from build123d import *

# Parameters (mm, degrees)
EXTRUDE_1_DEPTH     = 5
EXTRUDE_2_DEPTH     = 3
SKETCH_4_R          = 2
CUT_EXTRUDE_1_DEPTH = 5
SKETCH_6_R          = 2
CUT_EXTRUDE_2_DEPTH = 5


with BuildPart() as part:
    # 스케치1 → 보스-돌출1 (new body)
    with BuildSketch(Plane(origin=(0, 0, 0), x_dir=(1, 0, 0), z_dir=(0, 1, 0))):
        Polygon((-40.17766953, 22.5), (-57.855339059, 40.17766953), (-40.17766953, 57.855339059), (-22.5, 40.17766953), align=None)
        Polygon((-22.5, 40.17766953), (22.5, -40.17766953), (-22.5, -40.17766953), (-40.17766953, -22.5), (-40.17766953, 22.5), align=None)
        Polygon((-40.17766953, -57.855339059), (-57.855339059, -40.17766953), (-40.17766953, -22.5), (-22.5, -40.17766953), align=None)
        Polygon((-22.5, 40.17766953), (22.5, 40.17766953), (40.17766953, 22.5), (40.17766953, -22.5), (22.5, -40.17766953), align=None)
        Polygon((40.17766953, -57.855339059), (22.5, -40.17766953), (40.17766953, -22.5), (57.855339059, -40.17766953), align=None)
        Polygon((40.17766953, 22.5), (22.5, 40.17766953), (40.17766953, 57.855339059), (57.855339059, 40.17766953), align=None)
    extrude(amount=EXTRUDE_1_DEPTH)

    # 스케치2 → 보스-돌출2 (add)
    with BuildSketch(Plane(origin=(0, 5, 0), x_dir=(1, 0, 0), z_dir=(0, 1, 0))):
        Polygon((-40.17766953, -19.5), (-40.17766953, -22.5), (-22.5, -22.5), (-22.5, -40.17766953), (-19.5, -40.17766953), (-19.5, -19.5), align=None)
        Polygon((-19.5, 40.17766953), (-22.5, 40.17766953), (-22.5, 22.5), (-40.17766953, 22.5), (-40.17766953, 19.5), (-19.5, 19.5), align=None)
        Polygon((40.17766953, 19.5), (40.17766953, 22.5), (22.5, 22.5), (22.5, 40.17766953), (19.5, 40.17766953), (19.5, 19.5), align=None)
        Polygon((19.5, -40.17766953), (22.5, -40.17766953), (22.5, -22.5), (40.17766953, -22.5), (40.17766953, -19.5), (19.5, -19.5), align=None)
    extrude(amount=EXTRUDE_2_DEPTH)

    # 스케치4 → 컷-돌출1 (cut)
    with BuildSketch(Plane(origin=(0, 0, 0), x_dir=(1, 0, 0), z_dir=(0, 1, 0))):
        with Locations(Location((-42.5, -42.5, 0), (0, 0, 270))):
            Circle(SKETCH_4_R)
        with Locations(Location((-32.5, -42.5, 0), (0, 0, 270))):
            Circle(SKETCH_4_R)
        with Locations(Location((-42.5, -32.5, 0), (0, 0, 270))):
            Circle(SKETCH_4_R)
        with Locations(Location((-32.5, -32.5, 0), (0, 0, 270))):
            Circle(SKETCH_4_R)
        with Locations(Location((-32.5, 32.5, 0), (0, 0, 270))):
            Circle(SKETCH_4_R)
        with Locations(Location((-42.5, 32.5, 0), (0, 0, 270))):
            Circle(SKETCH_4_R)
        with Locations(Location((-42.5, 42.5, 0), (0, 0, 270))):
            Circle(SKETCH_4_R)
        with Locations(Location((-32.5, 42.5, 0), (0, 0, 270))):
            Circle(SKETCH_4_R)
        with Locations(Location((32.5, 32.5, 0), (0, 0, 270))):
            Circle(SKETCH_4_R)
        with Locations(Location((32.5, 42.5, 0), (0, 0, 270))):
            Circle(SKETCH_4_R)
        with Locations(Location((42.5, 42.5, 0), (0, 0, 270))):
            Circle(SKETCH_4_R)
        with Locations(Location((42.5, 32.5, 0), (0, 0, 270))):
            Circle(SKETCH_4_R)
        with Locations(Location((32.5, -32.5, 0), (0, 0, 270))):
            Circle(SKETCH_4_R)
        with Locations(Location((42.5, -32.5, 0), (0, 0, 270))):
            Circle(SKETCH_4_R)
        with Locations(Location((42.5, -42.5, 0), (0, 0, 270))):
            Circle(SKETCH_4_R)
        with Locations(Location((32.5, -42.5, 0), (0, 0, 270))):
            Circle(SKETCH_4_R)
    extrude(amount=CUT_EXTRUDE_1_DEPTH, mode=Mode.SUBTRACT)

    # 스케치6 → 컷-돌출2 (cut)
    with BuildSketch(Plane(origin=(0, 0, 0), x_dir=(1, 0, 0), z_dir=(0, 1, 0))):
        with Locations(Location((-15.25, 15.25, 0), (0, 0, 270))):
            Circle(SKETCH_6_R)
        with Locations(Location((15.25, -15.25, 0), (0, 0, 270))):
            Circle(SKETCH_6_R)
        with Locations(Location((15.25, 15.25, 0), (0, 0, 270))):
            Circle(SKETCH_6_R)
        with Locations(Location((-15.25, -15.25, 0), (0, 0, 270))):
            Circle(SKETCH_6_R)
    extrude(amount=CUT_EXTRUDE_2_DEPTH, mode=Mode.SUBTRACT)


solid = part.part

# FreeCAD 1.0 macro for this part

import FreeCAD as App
import Part
import Sketcher


def add_polygon(sketch, points):
    """Adds a closed chain of lines whose ends are joined by coincident constraints."""
    first, n = sketch.GeometryCount, len(points)
    for a, b in zip(points, points[1:] + points[:1]):
        sketch.addGeometry(Part.LineSegment(App.Vector(*a, 0), App.Vector(*b, 0)), False)
    for i in range(n):
        sketch.addConstraint(Sketcher.Constraint("Coincident", first + i, 2, first + (i + 1) % n, 1))

doc = App.newDocument("Part")
body = doc.addObject("PartDesign::Body", "Body")

sketch1 = doc.addObject("Sketcher::SketchObject", "Sketch")
body.addObject(sketch1)
sketch1.AttachmentSupport = (doc.XZ_Plane, [""])
sketch1.MapMode = "FlatFace"
add_polygon(sketch1, [(-58, -40), (-40, -22), (-40, 22), (-58, 40), (-40, 58), (-22, 40), (22, 40), (40, 58), (58, 40), (40, 22), (40, -22), (58, -40), (40, -58), (22, -40), (-22, -40), (-40, -58)])
sketch1.addConstraint(Sketcher.Constraint("Vertical", 1))
sketch1.addConstraint(Sketcher.Constraint("Horizontal", 5))
sketch1.addConstraint(Sketcher.Constraint("Vertical", 9))
sketch1.addConstraint(Sketcher.Constraint("Horizontal", 13))
sketch1.addConstraint(Sketcher.Constraint("Symmetric", 0, 2, 8, 2, -1, 1))
sketch1.addConstraint(Sketcher.Constraint("Symmetric", 2, 2, 10, 2, -1, 1))
sketch1.addConstraint(Sketcher.Constraint("Symmetric", 3, 2, 11, 2, -1, 1))
sketch1.addConstraint(Sketcher.Constraint("Symmetric", 4, 2, 12, 2, -1, 1))
sketch1.addConstraint(Sketcher.Constraint("Symmetric", 6, 2, 14, 2, -1, 1))
sketch1.addConstraint(Sketcher.Constraint("Symmetric", 7, 2, 15, 2, -1, 1))
sketch1.addConstraint(Sketcher.Constraint("Symmetric", 3, 2, 6, 2, -2))
sketch1.addConstraint(Sketcher.Constraint("Symmetric", 2, 2, 7, 2, -2))
sketch1.addConstraint(Sketcher.Constraint("Perpendicular", 0, 2))
sketch1.addConstraint(Sketcher.Constraint("Perpendicular", 2, 3))
sketch1.addConstraint(Sketcher.Constraint("Perpendicular", 3, 4))
sketch1.addConstraint(Sketcher.Constraint("Perpendicular", 4, 6))
sketch1.addConstraint(Sketcher.Constraint("Perpendicular", 6, 7))
sketch1.addConstraint(Sketcher.Constraint("Perpendicular", 8, 10))
sketch1.addConstraint(Sketcher.Constraint("Perpendicular", 12, 14))
sketch1.addConstraint(Sketcher.Constraint("Horizontal", 2, 2, 4, 2))
sketch1.addConstraint(Sketcher.Constraint("Vertical", 1, 2, 3, 2))
sketch1.addConstraint(Sketcher.Constraint("Equal", 13, 1))
sketch1.addConstraint(Sketcher.Constraint("DistanceX", 5, 1, 5, 2, 45.0))
sketch1.addConstraint(Sketcher.Constraint("Distance", 0, 25.0))
pad1 = doc.addObject("PartDesign::Pad", "Pad")
body.addObject(pad1)
pad1.Profile = sketch1
pad1.Length = 5
pad1.Reversed = True

sketch2 = doc.addObject("Sketcher::SketchObject", "Sketch001")
body.addObject(sketch2)
sketch2.AttachmentSupport = (doc.XZ_Plane, [""])
sketch2.MapMode = "FlatFace"
sketch2.AttachmentOffset = App.Placement(App.Vector(0, 0, -5), App.Rotation())
add_polygon(sketch2, [(-40.2, 19.5), (-40.2, 22.5), (-22.5, 22.5), (-22.5, 40.2), (-19.5, 40.2), (-19.5, 19.5)])
add_polygon(sketch2, [(-19.5, -40.2), (-22.5, -40.2), (-22.5, -22.5), (-40.2, -22.5), (-40.2, -19.5), (-19.5, -19.5)])
add_polygon(sketch2, [(40.2, -19.5), (40.2, -22.5), (22.5, -22.5), (22.5, -40.2), (19.5, -40.2), (19.5, -19.5)])
add_polygon(sketch2, [(19.5, 40.2), (22.5, 40.2), (22.5, 22.5), (40.2, 22.5), (40.2, 19.5), (19.5, 19.5)])
sketch2.addConstraint(Sketcher.Constraint("Vertical", 0))
sketch2.addConstraint(Sketcher.Constraint("Horizontal", 1))
sketch2.addConstraint(Sketcher.Constraint("Vertical", 2))
sketch2.addConstraint(Sketcher.Constraint("Horizontal", 3))
sketch2.addConstraint(Sketcher.Constraint("Vertical", 4))
sketch2.addConstraint(Sketcher.Constraint("Horizontal", 5))
sketch2.addConstraint(Sketcher.Constraint("Horizontal", 6))
sketch2.addConstraint(Sketcher.Constraint("Vertical", 7))
sketch2.addConstraint(Sketcher.Constraint("Horizontal", 8))
sketch2.addConstraint(Sketcher.Constraint("Vertical", 9))
sketch2.addConstraint(Sketcher.Constraint("Horizontal", 10))
sketch2.addConstraint(Sketcher.Constraint("Vertical", 11))
sketch2.addConstraint(Sketcher.Constraint("Vertical", 12))
sketch2.addConstraint(Sketcher.Constraint("Horizontal", 13))
sketch2.addConstraint(Sketcher.Constraint("Vertical", 14))
sketch2.addConstraint(Sketcher.Constraint("Horizontal", 15))
sketch2.addConstraint(Sketcher.Constraint("Vertical", 16))
sketch2.addConstraint(Sketcher.Constraint("Horizontal", 17))
sketch2.addConstraint(Sketcher.Constraint("Horizontal", 18))
sketch2.addConstraint(Sketcher.Constraint("Vertical", 19))
sketch2.addConstraint(Sketcher.Constraint("Horizontal", 20))
sketch2.addConstraint(Sketcher.Constraint("Vertical", 21))
sketch2.addConstraint(Sketcher.Constraint("Horizontal", 22))
sketch2.addConstraint(Sketcher.Constraint("Vertical", 23))
sketch2.addConstraint(Sketcher.Constraint("Symmetric", 0, 2, 12, 2, -1, 1))
sketch2.addConstraint(Sketcher.Constraint("Symmetric", 2, 2, 14, 2, -1, 1))
sketch2.addConstraint(Sketcher.Constraint("Symmetric", 4, 2, 16, 2, -1, 1))
sketch2.addConstraint(Sketcher.Constraint("Symmetric", 6, 2, 18, 2, -1, 1))
sketch2.addConstraint(Sketcher.Constraint("Symmetric", 8, 2, 20, 2, -1, 1))
sketch2.addConstraint(Sketcher.Constraint("Symmetric", 10, 2, 22, 2, -1, 1))
sketch2.addConstraint(Sketcher.Constraint("Symmetric", 8, 2, 12, 2, -2))
sketch2.addConstraint(Sketcher.Constraint("Symmetric", 6, 2, 14, 2, -2))
sketch2.addConstraint(Sketcher.Constraint("Symmetric", 10, 2, 16, 2, -2))
sketch2.addConstraint(Sketcher.Constraint("Equal", 18, 0))
sketch2.addConstraint(Sketcher.Constraint("Equal", 20, 2))
sketch2.addConstraint(Sketcher.Constraint("DistanceX", 3, 1, 3, 2, 3.0))
sketch2.addConstraint(Sketcher.Constraint("DistanceY", 7, 2, 4, 2, 42.0))
sketch2.addConstraint(Sketcher.Constraint("DistanceX", 10, 2, 13, 2, 42.0))
sketch2.addConstraint(Sketcher.Constraint("DistanceX", 1, 1, 1, 2, 17.67767))
pad2 = doc.addObject("PartDesign::Pad", "Pad001")
body.addObject(pad2)
pad2.Profile = sketch2
pad2.Length = 3
pad2.Reversed = True

sketch3 = doc.addObject("Sketcher::SketchObject", "Sketch002")
body.addObject(sketch3)
sketch3.AttachmentSupport = (doc.XZ_Plane, [""])
sketch3.MapMode = "FlatFace"
sketch3.addGeometry(Part.Circle(App.Vector(-42.5, 42.5, 0), App.Vector(0, 0, 1), 2), False)
sketch3.addGeometry(Part.Circle(App.Vector(-32.5, 42.5, 0), App.Vector(0, 0, 1), 2), False)
sketch3.addGeometry(Part.Circle(App.Vector(-42.5, 32.5, 0), App.Vector(0, 0, 1), 2), False)
sketch3.addGeometry(Part.Circle(App.Vector(-32.5, 32.5, 0), App.Vector(0, 0, 1), 2), False)
sketch3.addGeometry(Part.Circle(App.Vector(-32.5, -32.5, 0), App.Vector(0, 0, 1), 2), False)
sketch3.addGeometry(Part.Circle(App.Vector(-42.5, -32.5, 0), App.Vector(0, 0, 1), 2), False)
sketch3.addGeometry(Part.Circle(App.Vector(-42.5, -42.5, 0), App.Vector(0, 0, 1), 2), False)
sketch3.addGeometry(Part.Circle(App.Vector(-32.5, -42.5, 0), App.Vector(0, 0, 1), 2), False)
sketch3.addGeometry(Part.Circle(App.Vector(32.5, -32.5, 0), App.Vector(0, 0, 1), 2), False)
sketch3.addGeometry(Part.Circle(App.Vector(32.5, -42.5, 0), App.Vector(0, 0, 1), 2), False)
sketch3.addGeometry(Part.Circle(App.Vector(42.5, -42.5, 0), App.Vector(0, 0, 1), 2), False)
sketch3.addGeometry(Part.Circle(App.Vector(42.5, -32.5, 0), App.Vector(0, 0, 1), 2), False)
sketch3.addGeometry(Part.Circle(App.Vector(32.5, 32.5, 0), App.Vector(0, 0, 1), 2), False)
sketch3.addGeometry(Part.Circle(App.Vector(42.5, 32.5, 0), App.Vector(0, 0, 1), 2), False)
sketch3.addGeometry(Part.Circle(App.Vector(42.5, 42.5, 0), App.Vector(0, 0, 1), 2), False)
sketch3.addGeometry(Part.Circle(App.Vector(32.5, 42.5, 0), App.Vector(0, 0, 1), 2), False)
sketch3.addConstraint(Sketcher.Constraint("Equal", 0, 1))
sketch3.addConstraint(Sketcher.Constraint("Equal", 1, 2))
sketch3.addConstraint(Sketcher.Constraint("Equal", 2, 3))
sketch3.addConstraint(Sketcher.Constraint("Equal", 3, 4))
sketch3.addConstraint(Sketcher.Constraint("Equal", 4, 5))
sketch3.addConstraint(Sketcher.Constraint("Equal", 5, 6))
sketch3.addConstraint(Sketcher.Constraint("Equal", 6, 7))
sketch3.addConstraint(Sketcher.Constraint("Equal", 7, 8))
sketch3.addConstraint(Sketcher.Constraint("Equal", 8, 9))
sketch3.addConstraint(Sketcher.Constraint("Equal", 9, 10))
sketch3.addConstraint(Sketcher.Constraint("Equal", 10, 11))
sketch3.addConstraint(Sketcher.Constraint("Equal", 11, 12))
sketch3.addConstraint(Sketcher.Constraint("Equal", 12, 13))
sketch3.addConstraint(Sketcher.Constraint("Equal", 13, 14))
sketch3.addConstraint(Sketcher.Constraint("Equal", 14, 15))
sketch3.addConstraint(Sketcher.Constraint("Symmetric", 3, 3, 8, 3, -1, 1))
sketch3.addConstraint(Sketcher.Constraint("Symmetric", 1, 3, 9, 3, -1, 1))
sketch3.addConstraint(Sketcher.Constraint("Symmetric", 0, 3, 10, 3, -1, 1))
sketch3.addConstraint(Sketcher.Constraint("Symmetric", 2, 3, 11, 3, -1, 1))
sketch3.addConstraint(Sketcher.Constraint("Symmetric", 4, 3, 12, 3, -1, 1))
sketch3.addConstraint(Sketcher.Constraint("Symmetric", 5, 3, 13, 3, -1, 1))
sketch3.addConstraint(Sketcher.Constraint("Symmetric", 6, 3, 14, 3, -1, 1))
sketch3.addConstraint(Sketcher.Constraint("Symmetric", 7, 3, 15, 3, -1, 1))
sketch3.addConstraint(Sketcher.Constraint("Symmetric", 4, 3, 8, 3, -2))
sketch3.addConstraint(Sketcher.Constraint("Symmetric", 7, 3, 9, 3, -2))
sketch3.addConstraint(Sketcher.Constraint("Symmetric", 6, 3, 10, 3, -2))
sketch3.addConstraint(Sketcher.Constraint("Symmetric", 5, 3, 11, 3, -2))
sketch3.addConstraint(Sketcher.Constraint("Horizontal", 0, 3, 1, 3))
sketch3.addConstraint(Sketcher.Constraint("Horizontal", 2, 3, 3, 3))
sketch3.addConstraint(Sketcher.Constraint("Vertical", 0, 3, 2, 3))
sketch3.addConstraint(Sketcher.Constraint("Vertical", 1, 3, 3, 3))
sketch3.addConstraint(Sketcher.Constraint("Diameter", 0, 4.0))
sketch3.addConstraint(Sketcher.Constraint("DistanceX", 0, 3, 1, 3, 10.0))
sketch3.addConstraint(Sketcher.Constraint("DistanceY", 2, 3, 0, 3, 10.0))
sketch3.addConstraint(Sketcher.Constraint("DistanceY", 4, 3, 3, 3, 65.0))
sketch3.addConstraint(Sketcher.Constraint("DistanceX", 4, 3, 8, 3, 65.0))
pocket1 = doc.addObject("PartDesign::Pocket", "Pocket")
body.addObject(pocket1)
pocket1.Profile = sketch3
pocket1.Length = 5

sketch4 = doc.addObject("Sketcher::SketchObject", "Sketch003")
body.addObject(sketch4)
sketch4.AttachmentSupport = (doc.XZ_Plane, [""])
sketch4.MapMode = "FlatFace"
sketch4.addGeometry(Part.Circle(App.Vector(-15.2, -15.2, 0), App.Vector(0, 0, 1), 2), False)
sketch4.addGeometry(Part.Circle(App.Vector(15.2, 15.2, 0), App.Vector(0, 0, 1), 2), False)
sketch4.addGeometry(Part.Circle(App.Vector(15.2, -15.2, 0), App.Vector(0, 0, 1), 2), False)
sketch4.addGeometry(Part.Circle(App.Vector(-15.2, 15.2, 0), App.Vector(0, 0, 1), 2), False)
sketch4.addConstraint(Sketcher.Constraint("Equal", 0, 1))
sketch4.addConstraint(Sketcher.Constraint("Equal", 1, 2))
sketch4.addConstraint(Sketcher.Constraint("Equal", 2, 3))
sketch4.addConstraint(Sketcher.Constraint("Symmetric", 0, 3, 1, 3, -1, 1))
sketch4.addConstraint(Sketcher.Constraint("Symmetric", 2, 3, 3, 3, -1, 1))
sketch4.addConstraint(Sketcher.Constraint("Symmetric", 0, 3, 2, 3, -2))
sketch4.addConstraint(Sketcher.Constraint("Diameter", 0, 4.0))
sketch4.addConstraint(Sketcher.Constraint("DistanceX", 0, 3, 1, 3, 30.5))
sketch4.addConstraint(Sketcher.Constraint("DistanceY", 0, 3, 1, 3, 30.5))
pocket2 = doc.addObject("PartDesign::Pocket", "Pocket001")
body.addObject(pocket2)
pocket2.Profile = sketch4
pocket2.Length = 5

doc.recompute()
